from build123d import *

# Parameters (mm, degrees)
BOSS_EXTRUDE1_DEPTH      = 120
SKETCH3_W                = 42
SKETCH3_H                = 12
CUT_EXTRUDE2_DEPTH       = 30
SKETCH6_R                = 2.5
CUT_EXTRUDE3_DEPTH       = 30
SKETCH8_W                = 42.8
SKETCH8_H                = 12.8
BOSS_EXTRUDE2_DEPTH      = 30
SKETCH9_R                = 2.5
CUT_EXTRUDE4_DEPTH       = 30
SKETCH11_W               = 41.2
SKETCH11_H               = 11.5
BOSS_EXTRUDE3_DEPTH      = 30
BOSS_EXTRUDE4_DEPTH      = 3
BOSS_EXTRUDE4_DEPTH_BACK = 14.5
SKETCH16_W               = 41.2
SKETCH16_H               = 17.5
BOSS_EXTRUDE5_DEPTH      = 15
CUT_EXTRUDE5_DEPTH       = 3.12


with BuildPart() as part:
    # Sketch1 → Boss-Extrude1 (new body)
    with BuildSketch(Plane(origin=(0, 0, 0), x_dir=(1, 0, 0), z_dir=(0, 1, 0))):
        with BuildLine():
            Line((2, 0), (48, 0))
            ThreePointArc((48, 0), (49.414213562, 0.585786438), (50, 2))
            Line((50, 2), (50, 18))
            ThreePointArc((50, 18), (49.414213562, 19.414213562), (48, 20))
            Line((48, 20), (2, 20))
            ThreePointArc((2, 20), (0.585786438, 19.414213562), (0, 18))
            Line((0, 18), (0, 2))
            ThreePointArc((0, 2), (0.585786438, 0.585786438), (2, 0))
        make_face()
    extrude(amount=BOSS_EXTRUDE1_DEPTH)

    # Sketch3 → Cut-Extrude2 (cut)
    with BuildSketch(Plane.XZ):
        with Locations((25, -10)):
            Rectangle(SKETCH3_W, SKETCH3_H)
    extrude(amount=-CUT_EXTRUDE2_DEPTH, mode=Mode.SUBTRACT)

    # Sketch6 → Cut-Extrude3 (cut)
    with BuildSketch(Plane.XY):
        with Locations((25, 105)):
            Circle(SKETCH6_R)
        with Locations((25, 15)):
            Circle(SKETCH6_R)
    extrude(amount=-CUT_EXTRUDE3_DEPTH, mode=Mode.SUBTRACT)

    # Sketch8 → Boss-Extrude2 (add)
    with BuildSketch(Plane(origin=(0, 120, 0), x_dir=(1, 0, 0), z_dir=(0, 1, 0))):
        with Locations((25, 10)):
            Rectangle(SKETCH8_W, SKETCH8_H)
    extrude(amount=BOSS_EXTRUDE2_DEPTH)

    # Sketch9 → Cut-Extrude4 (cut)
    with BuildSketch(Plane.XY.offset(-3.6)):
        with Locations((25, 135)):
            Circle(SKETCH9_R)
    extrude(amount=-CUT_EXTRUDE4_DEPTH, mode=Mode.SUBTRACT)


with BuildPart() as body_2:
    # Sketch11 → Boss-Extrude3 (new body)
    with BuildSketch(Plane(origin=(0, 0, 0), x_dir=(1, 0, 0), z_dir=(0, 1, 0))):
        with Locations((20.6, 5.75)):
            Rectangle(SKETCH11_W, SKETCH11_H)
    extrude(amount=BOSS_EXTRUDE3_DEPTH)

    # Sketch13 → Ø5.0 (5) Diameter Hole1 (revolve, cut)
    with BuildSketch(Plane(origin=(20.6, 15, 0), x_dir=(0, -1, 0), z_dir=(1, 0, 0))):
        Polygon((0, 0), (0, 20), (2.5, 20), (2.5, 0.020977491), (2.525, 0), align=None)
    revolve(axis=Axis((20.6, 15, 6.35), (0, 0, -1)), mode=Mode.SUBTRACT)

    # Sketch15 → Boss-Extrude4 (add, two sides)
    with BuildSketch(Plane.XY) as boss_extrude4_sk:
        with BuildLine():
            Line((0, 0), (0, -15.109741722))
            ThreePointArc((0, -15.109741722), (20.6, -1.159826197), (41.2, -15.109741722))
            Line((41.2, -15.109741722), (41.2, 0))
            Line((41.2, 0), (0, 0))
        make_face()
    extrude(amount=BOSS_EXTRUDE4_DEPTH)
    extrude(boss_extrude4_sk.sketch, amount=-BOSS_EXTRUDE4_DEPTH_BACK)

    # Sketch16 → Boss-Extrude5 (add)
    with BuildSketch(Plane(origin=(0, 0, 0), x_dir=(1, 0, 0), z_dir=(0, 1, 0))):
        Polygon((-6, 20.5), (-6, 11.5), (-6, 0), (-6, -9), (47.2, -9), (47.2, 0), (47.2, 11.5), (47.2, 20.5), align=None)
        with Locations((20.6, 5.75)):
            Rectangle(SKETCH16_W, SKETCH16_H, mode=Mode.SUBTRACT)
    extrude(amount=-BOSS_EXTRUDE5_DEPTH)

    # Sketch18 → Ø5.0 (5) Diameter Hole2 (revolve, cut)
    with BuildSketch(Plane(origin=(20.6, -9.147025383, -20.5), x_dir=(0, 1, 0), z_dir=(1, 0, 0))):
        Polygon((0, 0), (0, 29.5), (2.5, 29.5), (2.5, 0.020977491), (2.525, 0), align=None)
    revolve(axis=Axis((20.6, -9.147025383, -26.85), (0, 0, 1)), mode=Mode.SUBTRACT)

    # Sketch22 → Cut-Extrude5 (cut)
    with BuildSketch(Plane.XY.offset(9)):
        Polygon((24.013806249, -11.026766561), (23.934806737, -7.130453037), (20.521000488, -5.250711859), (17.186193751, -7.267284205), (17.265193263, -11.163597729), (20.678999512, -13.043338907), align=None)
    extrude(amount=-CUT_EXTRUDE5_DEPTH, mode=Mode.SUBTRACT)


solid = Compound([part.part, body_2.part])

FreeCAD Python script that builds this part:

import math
import FreeCAD as App
import Part
import Sketcher
Q = App.Units.Quantity


def add_polygon(sketch, points):
    """Adds a closed chain of lines whose ends are joined by coincident constraints."""
    first, n = sketch.GeometryCount, len(points)
    for a, b in zip(points, points[1:] + points[:1]):
        sketch.addGeometry(Part.LineSegment(App.Vector(*a, 0), App.Vector(*b, 0)), False)
    for i in range(n):
        sketch.addConstraint(Sketcher.Constraint("Coincident", first + i, 2, first + (i + 1) % n, 1))

doc = App.newDocument("Part")
body = doc.addObject("PartDesign::Body", "Body")

sketch1 = body.newObject("Sketcher::SketchObject", "Sketch")
sketch1.AttachmentSupport = (doc.getObject("XZ_Plane"), [""])
sketch1.MapMode = "FlatFace"
sketch1.addGeometry(Part.LineSegment(App.Vector(2, 0, 0), App.Vector(48, 0, 0)), False)
sketch1.addGeometry(Part.ArcOfCircle(Part.Circle(App.Vector(48, -2, 0), App.Vector(0, 0, 1), 2), math.radians(0), math.radians(90)), False)
sketch1.addGeometry(Part.LineSegment(App.Vector(50, -2, 0), App.Vector(50, -18, 0)), False)
sketch1.addGeometry(Part.ArcOfCircle(Part.Circle(App.Vector(48, -18, 0), App.Vector(0, 0, 1), 2), math.radians(-90), math.radians(0)), False)
sketch1.addGeometry(Part.LineSegment(App.Vector(48, -20, 0), App.Vector(2, -20, 0)), False)
sketch1.addGeometry(Part.ArcOfCircle(Part.Circle(App.Vector(2, -18, 0), App.Vector(0, 0, 1), 2), math.radians(-180), math.radians(-90)), False)
sketch1.addGeometry(Part.LineSegment(App.Vector(0, -18, 0), App.Vector(0, -2, 0)), False)
sketch1.addGeometry(Part.ArcOfCircle(Part.Circle(App.Vector(2, -2, 0), App.Vector(0, 0, 1), 2), math.radians(90), math.radians(180)), False)
sketch1.addConstraint(Sketcher.Constraint("Tangent", 0, 2, 1, 2))
sketch1.addConstraint(Sketcher.Constraint("Tangent", 1, 1, 2, 1))
sketch1.addConstraint(Sketcher.Constraint("Tangent", 2, 2, 3, 2))
sketch1.addConstraint(Sketcher.Constraint("Tangent", 3, 1, 4, 1))
sketch1.addConstraint(Sketcher.Constraint("Tangent", 4, 2, 5, 2))
sketch1.addConstraint(Sketcher.Constraint("Tangent", 5, 1, 6, 1))
sketch1.addConstraint(Sketcher.Constraint("Tangent", 6, 2, 7, 2))
sketch1.addConstraint(Sketcher.Constraint("Tangent", 7, 1, 0, 1))
sketch1.addConstraint(Sketcher.Constraint("Horizontal", 0))
sketch1.addConstraint(Sketcher.Constraint("Vertical", 2))
sketch1.addConstraint(Sketcher.Constraint("Horizontal", 4))
sketch1.addConstraint(Sketcher.Constraint("Vertical", 6))
sketch1.addConstraint(Sketcher.Constraint("Equal", 1, 3))
sketch1.addConstraint(Sketcher.Constraint("Equal", 3, 5))
sketch1.addConstraint(Sketcher.Constraint("Equal", 5, 7))
sketch1.addConstraint(Sketcher.Constraint("PointOnObject", 0, 2, -1))
sketch1.addConstraint(Sketcher.Constraint("PointOnObject", 5, 1, -2))
sketch1.addConstraint(Sketcher.Constraint("Radius", 1, 2.0))
sketch1.addConstraint(Sketcher.Constraint("DistanceX", 0, 1, 0, 2, 46.0))
sketch1.addConstraint(Sketcher.Constraint("DistanceY", 2, 2, 2, 1, 16.0))
pad1 = body.newObject("PartDesign::Pad", "Pad")
pad1.Profile = sketch1
pad1.Length = 120
pad1.Reversed = True

sketch2 = body.newObject("Sketcher::SketchObject", "Sketch001")
sketch2.AttachmentSupport = (doc.getObject("XZ_Plane"), [""])
sketch2.MapMode = "FlatFace"
add_polygon(sketch2, [(4, -4), (4, -16), (46, -16), (46, -4)])
sketch2.addConstraint(Sketcher.Constraint("Vertical", 0))
sketch2.addConstraint(Sketcher.Constraint("Horizontal", 1))
sketch2.addConstraint(Sketcher.Constraint("Vertical", 2))
sketch2.addConstraint(Sketcher.Constraint("Horizontal", 3))
sketch2.addConstraint(Sketcher.Constraint("DistanceX", 1, 1, 1, 2, 42.0))
sketch2.addConstraint(Sketcher.Constraint("DistanceY", 0, 2, 0, 1, 12.0))
sketch2.addConstraint(Sketcher.Constraint("DistanceX", -1, 1, 0, 2, 4.0))
sketch2.addConstraint(Sketcher.Constraint("DistanceY", 0, 2, -1, 1, 16.0))
pocket1 = body.newObject("PartDesign::Pocket", "Pocket")
pocket1.Profile = sketch2
pocket1.Length = 30

sketch3 = body.newObject("Sketcher::SketchObject", "Sketch002")
sketch3.AttachmentSupport = (doc.getObject("XY_Plane"), [""])
sketch3.MapMode = "FlatFace"
sketch3.addGeometry(Part.Circle(App.Vector(25, 105, 0), App.Vector(0, 0, 1), 2.5), False)
sketch3.addGeometry(Part.Circle(App.Vector(25, 15, 0), App.Vector(0, 0, 1), 2.5), False)
sketch3.addConstraint(Sketcher.Constraint("Equal", 0, 1))
sketch3.addConstraint(Sketcher.Constraint("Vertical", 0, 3, 1, 3))
sketch3.addConstraint(Sketcher.Constraint("Diameter", 0, 5.0))
sketch3.addConstraint(Sketcher.Constraint("DistanceX", -1, 1, 0, 3, 25.0))
sketch3.addConstraint(Sketcher.Constraint("DistanceY", -1, 1, 0, 3, 105.0))
sketch3.addConstraint(Sketcher.Constraint("DistanceY", -1, 1, 1, 3, 15.0))
pocket2 = body.newObject("PartDesign::Pocket", "Pocket001")
pocket2.Profile = sketch3
pocket2.Length = 30

sketch4 = body.newObject("Sketcher::SketchObject", "Sketch003")
sketch4.AttachmentSupport = (doc.getObject("XZ_Plane"), [""])
sketch4.MapMode = "FlatFace"
sketch4.AttachmentOffset = App.Placement(App.Vector(0, 0, -120), App.Rotation())
add_polygon(sketch4, [(4, -16), (4, -4), (46, -4), (46, -16)])
sketch4.addConstraint(Sketcher.Constraint("Vertical", 0))
sketch4.addConstraint(Sketcher.Constraint("Horizontal", 1))
sketch4.addConstraint(Sketcher.Constraint("Vertical", 2))
sketch4.addConstraint(Sketcher.Constraint("Horizontal", 3))
sketch4.addConstraint(Sketcher.Constraint("DistanceX", 1, 1, 1, 2, 42.8))
sketch4.addConstraint(Sketcher.Constraint("DistanceY", 0, 1, 0, 2, 12.8))
sketch4.addConstraint(Sketcher.Constraint("DistanceX", -1, 1, 0, 2, 3.6))
sketch4.addConstraint(Sketcher.Constraint("DistanceY", 0, 2, -1, 1, 3.6))
pad2 = body.newObject("PartDesign::Pad", "Pad001")
pad2.Profile = sketch4
pad2.Length = 30
pad2.Reversed = True

sketch5 = body.newObject("Sketcher::SketchObject", "Sketch004")
sketch5.AttachmentSupport = (doc.getObject("XY_Plane"), [""])
sketch5.MapMode = "FlatFace"
sketch5.AttachmentOffset = App.Placement(App.Vector(0, 0, -3.6), App.Rotation())
sketch5.addGeometry(Part.Circle(App.Vector(25, 135, 0), App.Vector(0, 0, 1), 2.5), False)
sketch5.addConstraint(Sketcher.Constraint("Diameter", 0, 5.0))
sketch5.addConstraint(Sketcher.Constraint("DistanceX", -1, 1, 0, 3, 25.0))
sketch5.addConstraint(Sketcher.Constraint("DistanceY", -1, 1, 0, 3, 135.0))
pocket3 = body.newObject("PartDesign::Pocket", "Pocket002")
pocket3.Profile = sketch5
pocket3.Length = 30
body2 = doc.addObject("PartDesign::Body", "Body001")

sketch6 = body2.newObject("Sketcher::SketchObject", "Sketch005")
sketch6.AttachmentSupport = (doc.getObject("XZ_Plane001"), [""])
sketch6.MapMode = "FlatFace"
add_polygon(sketch6, [(0, -12), (0, 0), (41, 0), (41, -12)])
sketch6.addConstraint(Sketcher.Constraint("Vertical", 0))
sketch6.addConstraint(Sketcher.Constraint("Horizontal", 1))
sketch6.addConstraint(Sketcher.Constraint("Vertical", 2))
sketch6.addConstraint(Sketcher.Constraint("Horizontal", 3))
sketch6.addConstraint(Sketcher.Constraint("Coincident", 0, 2, -1, 1))
sketch6.addConstraint(Sketcher.Constraint("DistanceX", 1, 1, 1, 2, 41.2))
sketch6.addConstraint(Sketcher.Constraint("DistanceY", 0, 1, 0, 2, 11.5))
pad3 = body2.newObject("PartDesign::Pad", "Pad002")
pad3.Profile = sketch6
pad3.Length = 30
pad3.Reversed = True

sketch7 = body2.newObject("Sketcher::SketchObject", "Sketch006")
sketch7.AttachmentSupport = (doc.getObject("YZ_Plane001"), [""])
sketch7.MapMode = "FlatFace"
sketch7.AttachmentOffset = App.Placement(App.Vector(0, 0, 20.6), App.Rotation())
add_polygon(sketch7, [(15, -20), (15, 0), (12.475, 0), (12.5, -0.021), (12.5, -20)])
sketch7.addGeometry(Part.LineSegment(App.Vector(15, 0, 0), App.Vector(15, -20, 0)), True)
sketch7.addConstraint(Sketcher.Constraint("Vertical", 0))
sketch7.addConstraint(Sketcher.Constraint("Horizontal", 1))
sketch7.addConstraint(Sketcher.Constraint("Vertical", 3))
sketch7.addConstraint(Sketcher.Constraint("Horizontal", 4))
sketch7.addConstraint(Sketcher.Constraint("Vertical", 5))
sketch7.addConstraint(Sketcher.Constraint("Coincident", 5, 1, 0, 2))
sketch7.addConstraint(Sketcher.Constraint("PointOnObject", 0, 2, -1))
sketch7.addConstraint(Sketcher.Constraint("Horizontal", 3, 2, 5, 2))
sketch7.addConstraint(Sketcher.Constraint("DistanceY", 0, 1, 0, 2, 20.0))
sketch7.addConstraint(Sketcher.Constraint("Angle", 2, Q("-40 deg")))
sketch7.addConstraint(Sketcher.Constraint("DistanceX", 4, 1, 4, 2, 2.5))
sketch7.addConstraint(Sketcher.Constraint("DistanceX", -1, 1, 0, 2, 15.0))
sketch7.addConstraint(Sketcher.Constraint("DistanceX", 1, 2, 1, 1, 2.525))
groove = body2.newObject("PartDesign::Groove", "Groove")
groove.Profile = sketch7
groove.ReferenceAxis = (sketch7, ["Axis0"])
groove.Angle = 360

sketch8 = body2.newObject("Sketcher::SketchObject", "Sketch007")
sketch8.AttachmentSupport = (doc.getObject("XY_Plane001"), [""])
sketch8.MapMode = "FlatFace"
sketch8.addGeometry(Part.LineSegment(App.Vector(0, 0, 0), App.Vector(0, -15, 0)), False)
sketch8.addGeometry(Part.ArcOfCircle(Part.Circle(App.Vector(21, -23, 0), App.Vector(0, 0, 1), 22), math.radians(22), math.radians(158)), False)
sketch8.addGeometry(Part.LineSegment(App.Vector(41, -15, 0), App.Vector(41, 0, 0)), False)
sketch8.addGeometry(Part.LineSegment(App.Vector(41, 0, 0), App.Vector(0, 0, 0)), False)
sketch8.addConstraint(Sketcher.Constraint("Coincident", 0, 2, 1, 2))
sketch8.addConstraint(Sketcher.Constraint("Coincident", 1, 1, 2, 1))
sketch8.addConstraint(Sketcher.Constraint("Coincident", 2, 2, 3, 1))
sketch8.addConstraint(Sketcher.Constraint("Coincident", 3, 2, 0, 1))
sketch8.addConstraint(Sketcher.Constraint("Vertical", 0))
sketch8.addConstraint(Sketcher.Constraint("Vertical", 2))
sketch8.addConstraint(Sketcher.Constraint("Horizontal", 3))
sketch8.addConstraint(Sketcher.Constraint("Coincident", 3, 2, -1, 1))
sketch8.addConstraint(Sketcher.Constraint("Horizontal", 0, 2, 1, 1))
sketch8.addConstraint(Sketcher.Constraint("DistanceX", 3, 2, 3, 1, 41.2))
sketch8.addConstraint(Sketcher.Constraint("Radius", 1, 22.185086))
sketch8.addConstraint(Sketcher.Constraint("DistanceY", 0, 2, 0, 1, 15.109742))
pad4 = body2.newObject("PartDesign::Pad", "Pad003")
pad4.Profile = sketch8
pad4.Type = "TwoLengths"
pad4.Length = 3
pad4.Length2 = 14.5

sketch9 = body2.newObject("Sketcher::SketchObject", "Sketch008")
sketch9.AttachmentSupport = (doc.getObject("XZ_Plane001"), [""])
sketch9.MapMode = "FlatFace"
add_polygon(sketch9, [(-6, -20), (-6, 9), (47, 9), (47, -20)])
add_polygon(sketch9, [(41, 3), (0, 3), (0, -14), (41, -14)])
sketch9.addConstraint(Sketcher.Constraint("Vertical", 0))
sketch9.addConstraint(Sketcher.Constraint("Horizontal", 1))
sketch9.addConstraint(Sketcher.Constraint("Vertical", 2))
sketch9.addConstraint(Sketcher.Constraint("Horizontal", 3))
sketch9.addConstraint(Sketcher.Constraint("Horizontal", 4))
sketch9.addConstraint(Sketcher.Constraint("Vertical", 5))
sketch9.addConstraint(Sketcher.Constraint("Horizontal", 6))
sketch9.addConstraint(Sketcher.Constraint("Vertical", 7))
sketch9.addConstraint(Sketcher.Constraint("PointOnObject", 4, 2, -2))
sketch9.addConstraint(Sketcher.Constraint("DistanceX", 1, 1, 1, 2, 53.2))
sketch9.addConstraint(Sketcher.Constraint("DistanceX", 4, 2, 4, 1, 41.2))
sketch9.addConstraint(Sketcher.Constraint("DistanceY", 0, 1, 0, 2, 29.5))
sketch9.addConstraint(Sketcher.Constraint("DistanceY", 5, 2, 5, 1, 17.5))
sketch9.addConstraint(Sketcher.Constraint("DistanceX", 0, 2, -1, 1, 6.0))
sketch9.addConstraint(Sketcher.Constraint("DistanceY", -1, 1, 0, 2, 9.0))
sketch9.addConstraint(Sketcher.Constraint("DistanceY", -1, 1, 4, 2, 3.0))
pad5 = body2.newObject("PartDesign::Pad", "Pad004")
pad5.Profile = sketch9
pad5.Length = 15

sketch10 = body2.newObject("Sketcher::SketchObject", "Sketch009")
sketch10.AttachmentSupport = (doc.getObject("YZ_Plane001"), [""])
sketch10.MapMode = "FlatFace"
sketch10.AttachmentOffset = App.Placement(App.Vector(0, 0, 20.6), App.Rotation())
add_polygon(sketch10, [(-9.147, 9), (-9.147, -20.5), (-6.622, -20.5), (-6.647, -20.479), (-6.647, 9)])
sketch10.addGeometry(Part.LineSegment(App.Vector(-9.147, -20.5, 0), App.Vector(-9.147, 9, 0)), True)
sketch10.addConstraint(Sketcher.Constraint("Vertical", 0))
sketch10.addConstraint(Sketcher.Constraint("Horizontal", 1))
sketch10.addConstraint(Sketcher.Constraint("Vertical", 3))
sketch10.addConstraint(Sketcher.Constraint("Horizontal", 4))
sketch10.addConstraint(Sketcher.Constraint("Vertical", 5))
sketch10.addConstraint(Sketcher.Constraint("Coincident", 5, 1, 0, 2))
sketch10.addConstraint(Sketcher.Constraint("Horizontal", 3, 2, 5, 2))
sketch10.addConstraint(Sketcher.Constraint("Angle", 2, Q("140 deg")))
sketch10.addConstraint(Sketcher.Constraint("DistanceX", 4, 2, 4, 1, 2.5))
sketch10.addConstraint(Sketcher.Constraint("DistanceY", 0, 2, 0, 1, 29.5))
sketch10.addConstraint(Sketcher.Constraint("DistanceY", -1, 1, 3, 2, 9.0))
sketch10.addConstraint(Sketcher.Constraint("DistanceX", 1, 1, 1, 2, 2.525))
sketch10.addConstraint(Sketcher.Constraint("DistanceX", 0, 2, -1, 1, 9.147025))
groove2 = body2.newObject("PartDesign::Groove", "Groove001")
groove2.Profile = sketch10
groove2.ReferenceAxis = (sketch10, ["Axis0"])
groove2.Angle = 360

sketch11 = body2.newObject("Sketcher::SketchObject", "Sketch010")
sketch11.AttachmentSupport = (doc.getObject("XY_Plane001"), [""])
sketch11.MapMode = "FlatFace"
sketch11.AttachmentOffset = App.Placement(App.Vector(0, 0, 9), App.Rotation())
add_polygon(sketch11, [(24, -11), (23.9, -7.1), (20.5, -5.3), (17.2, -7.3), (17.3, -11.2), (20.7, -13)])
sketch11.addConstraint(Sketcher.Constraint("Parallel", 0, 3))
sketch11.addConstraint(Sketcher.Constraint("Parallel", 1, 4))
sketch11.addConstraint(Sketcher.Constraint("Parallel", 2, 5))
sketch11.addConstraint(Sketcher.Constraint("Equal", 0, 1))
sketch11.addConstraint(Sketcher.Constraint("Equal", 1, 2))
sketch11.addConstraint(Sketcher.Constraint("Equal", 2, 3))
sketch11.addConstraint(Sketcher.Constraint("DistanceX", -1, 1, 1, 2, 20.521))
sketch11.addConstraint(Sketcher.Constraint("DistanceX", -1, 1, 4, 2, 20.679))
sketch11.addConstraint(Sketcher.Constraint("DistanceX", 2, 2, 3, 2, 0.079))
sketch11.addConstraint(Sketcher.Constraint("DistanceY", 1, 2, -1, 1, 5.250712))
sketch11.addConstraint(Sketcher.Constraint("DistanceY", 4, 2, -1, 1, 13.043339))
sketch11.addConstraint(Sketcher.Constraint("DistanceY", 0, 2, 1, 2, 1.879741))
pocket4 = body2.newObject("PartDesign::Pocket", "Pocket003")
pocket4.Profile = sketch11
pocket4.Length = 3.12

doc.recompute()
